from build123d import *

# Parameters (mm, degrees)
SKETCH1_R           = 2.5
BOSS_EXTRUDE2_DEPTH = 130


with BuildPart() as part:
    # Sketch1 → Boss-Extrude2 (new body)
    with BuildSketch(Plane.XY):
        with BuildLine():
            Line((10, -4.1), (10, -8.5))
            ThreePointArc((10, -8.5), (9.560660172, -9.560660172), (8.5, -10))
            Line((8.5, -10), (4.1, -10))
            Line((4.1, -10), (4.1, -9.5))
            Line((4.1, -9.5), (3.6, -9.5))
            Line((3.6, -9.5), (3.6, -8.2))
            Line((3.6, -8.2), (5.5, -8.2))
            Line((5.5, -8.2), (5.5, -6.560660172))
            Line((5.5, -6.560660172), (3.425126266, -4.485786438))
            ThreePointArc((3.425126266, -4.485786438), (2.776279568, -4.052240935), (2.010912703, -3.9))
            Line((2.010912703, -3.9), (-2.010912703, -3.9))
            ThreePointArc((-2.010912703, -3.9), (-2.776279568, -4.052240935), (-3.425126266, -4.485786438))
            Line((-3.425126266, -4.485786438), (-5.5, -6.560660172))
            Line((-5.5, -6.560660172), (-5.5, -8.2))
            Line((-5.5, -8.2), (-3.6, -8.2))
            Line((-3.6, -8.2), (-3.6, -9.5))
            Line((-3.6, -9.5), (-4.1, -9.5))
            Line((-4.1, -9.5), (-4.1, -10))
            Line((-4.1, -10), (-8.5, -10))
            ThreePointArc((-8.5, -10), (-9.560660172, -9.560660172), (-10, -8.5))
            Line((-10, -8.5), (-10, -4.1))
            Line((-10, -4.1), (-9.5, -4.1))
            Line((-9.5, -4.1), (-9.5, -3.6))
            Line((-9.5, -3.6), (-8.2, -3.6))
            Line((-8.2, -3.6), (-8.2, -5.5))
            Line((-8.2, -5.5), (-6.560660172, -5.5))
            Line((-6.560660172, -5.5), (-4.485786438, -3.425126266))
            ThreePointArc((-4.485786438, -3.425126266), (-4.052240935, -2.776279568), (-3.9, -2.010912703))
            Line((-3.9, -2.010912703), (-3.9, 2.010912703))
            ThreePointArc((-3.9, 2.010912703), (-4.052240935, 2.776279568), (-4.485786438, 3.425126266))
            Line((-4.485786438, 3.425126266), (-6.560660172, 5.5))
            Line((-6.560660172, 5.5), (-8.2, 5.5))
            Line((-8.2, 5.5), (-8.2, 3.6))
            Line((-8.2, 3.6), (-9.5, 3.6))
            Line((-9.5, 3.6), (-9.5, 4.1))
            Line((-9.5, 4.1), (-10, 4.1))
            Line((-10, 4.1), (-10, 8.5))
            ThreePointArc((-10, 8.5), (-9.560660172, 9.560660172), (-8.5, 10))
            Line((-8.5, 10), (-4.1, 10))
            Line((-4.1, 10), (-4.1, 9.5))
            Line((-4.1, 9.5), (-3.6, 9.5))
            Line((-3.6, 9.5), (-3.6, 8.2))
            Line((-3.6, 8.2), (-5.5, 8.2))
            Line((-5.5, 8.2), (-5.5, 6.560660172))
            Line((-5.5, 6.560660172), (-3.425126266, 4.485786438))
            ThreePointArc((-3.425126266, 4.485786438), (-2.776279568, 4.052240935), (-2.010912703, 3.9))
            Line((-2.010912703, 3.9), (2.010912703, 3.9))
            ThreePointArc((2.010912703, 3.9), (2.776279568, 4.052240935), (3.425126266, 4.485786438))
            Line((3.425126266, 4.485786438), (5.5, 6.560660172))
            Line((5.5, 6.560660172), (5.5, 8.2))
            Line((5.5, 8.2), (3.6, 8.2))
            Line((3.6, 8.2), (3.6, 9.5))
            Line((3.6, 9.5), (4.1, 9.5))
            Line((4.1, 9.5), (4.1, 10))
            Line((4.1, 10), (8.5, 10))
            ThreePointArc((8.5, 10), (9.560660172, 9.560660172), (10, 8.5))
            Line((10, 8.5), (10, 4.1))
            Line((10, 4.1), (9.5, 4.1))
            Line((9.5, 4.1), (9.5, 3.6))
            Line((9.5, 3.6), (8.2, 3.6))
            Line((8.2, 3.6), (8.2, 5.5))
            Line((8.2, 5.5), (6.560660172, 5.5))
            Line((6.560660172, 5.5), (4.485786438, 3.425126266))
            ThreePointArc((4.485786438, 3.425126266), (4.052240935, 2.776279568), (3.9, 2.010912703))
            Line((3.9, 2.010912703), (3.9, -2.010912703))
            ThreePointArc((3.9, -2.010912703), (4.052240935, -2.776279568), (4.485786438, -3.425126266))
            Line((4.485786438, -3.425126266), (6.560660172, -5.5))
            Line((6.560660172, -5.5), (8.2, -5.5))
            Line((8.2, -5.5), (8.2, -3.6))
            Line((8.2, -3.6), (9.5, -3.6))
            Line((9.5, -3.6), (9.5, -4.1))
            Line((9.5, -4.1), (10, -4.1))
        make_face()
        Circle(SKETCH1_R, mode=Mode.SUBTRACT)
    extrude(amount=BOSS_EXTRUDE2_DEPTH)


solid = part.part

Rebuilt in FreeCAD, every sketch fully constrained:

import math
import FreeCAD as App
import Part
import Sketcher
from FreeCAD import Vector

doc = App.newDocument("Part")
body = doc.addObject("PartDesign::Body", "Body")

sketch1 = body.newObject("Sketcher::SketchObject", "Sketch")
sketch1.AttachmentSupport = (doc.getObject("XY_Plane"), [""])
sketch1.MapMode = "FlatFace"
sketch1.addGeometry(Part.LineSegment(Vector(10, -8.5, 0), Vector(10, -4.1, 0)), False)
sketch1.addGeometry(Part.LineSegment(Vector(10, -4.1, 0), Vector(9.5, -4.1, 0)), False)
sketch1.addGeometry(Part.LineSegment(Vector(9.5, -4.1, 0), Vector(9.5, -3.6, 0)), False)
sketch1.addGeometry(Part.LineSegment(Vector(9.5, -3.6, 0), Vector(8.2, -3.6, 0)), False)
sketch1.addGeometry(Part.LineSegment(Vector(8.2, -3.6, 0), Vector(8.2, -5.5, 0)), False)
sketch1.addGeometry(Part.LineSegment(Vector(8.2, -5.5, 0), Vector(6.56, -5.5, 0)), False)
sketch1.addGeometry(Part.LineSegment(Vector(6.56, -5.5, 0), Vector(4.49, -3.43, 0)), False)
sketch1.addGeometry(Part.ArcOfCircle(Part.Circle(Vector(5.9, -2.01, 0), Vector(0, 0, 1), 2), math.radians(180), math.radians(225)), False)
sketch1.addGeometry(Part.LineSegment(Vector(3.9, -2.01, 0), Vector(3.9, 2.01, 0)), False)
sketch1.addGeometry(Part.ArcOfCircle(Part.Circle(Vector(5.9, 2.01, 0), Vector(0, 0, 1), 2), math.radians(135), math.radians(180)), False)
sketch1.addGeometry(Part.LineSegment(Vector(4.49, 3.43, 0), Vector(6.56, 5.5, 0)), False)
sketch1.addGeometry(Part.LineSegment(Vector(6.56, 5.5, 0), Vector(8.2, 5.5, 0)), False)
sketch1.addGeometry(Part.LineSegment(Vector(8.2, 5.5, 0), Vector(8.2, 3.6, 0)), False)
sketch1.addGeometry(Part.LineSegment(Vector(8.2, 3.6, 0), Vector(9.5, 3.6, 0)), False)
sketch1.addGeometry(Part.LineSegment(Vector(9.5, 3.6, 0), Vector(9.5, 4.1, 0)), False)
sketch1.addGeometry(Part.LineSegment(Vector(9.5, 4.1, 0), Vector(10, 4.1, 0)), False)
sketch1.addGeometry(Part.LineSegment(Vector(10, 4.1, 0), Vector(10, 8.5, 0)), False)
sketch1.addGeometry(Part.ArcOfCircle(Part.Circle(Vector(8.5, 8.5, 0), Vector(0, 0, 1), 1.5), math.radians(0), math.radians(90)), False)
sketch1.addGeometry(Part.LineSegment(Vector(8.5, 10, 0), Vector(4.1, 10, 0)), False)
sketch1.addGeometry(Part.LineSegment(Vector(4.1, 10, 0), Vector(4.1, 9.5, 0)), False)
sketch1.addGeometry(Part.LineSegment(Vector(4.1, 9.5, 0), Vector(3.6, 9.5, 0)), False)
sketch1.addGeometry(Part.LineSegment(Vector(3.6, 9.5, 0), Vector(3.6, 8.2, 0)), False)
sketch1.addGeometry(Part.LineSegment(Vector(3.6, 8.2, 0), Vector(5.5, 8.2, 0)), False)
sketch1.addGeometry(Part.LineSegment(Vector(5.5, 8.2, 0), Vector(5.5, 6.56, 0)), False)
sketch1.addGeometry(Part.LineSegment(Vector(5.5, 6.56, 0), Vector(3.43, 4.49, 0)), False)
sketch1.addGeometry(Part.ArcOfCircle(Part.Circle(Vector(2.01, 5.9, 0), Vector(0, 0, 1), 2), math.radians(-90), math.radians(-45)), False)
sketch1.addGeometry(Part.LineSegment(Vector(2.01, 3.9, 0), Vector(-2.01, 3.9, 0)), False)
sketch1.addGeometry(Part.ArcOfCircle(Part.Circle(Vector(-2.01, 5.9, 0), Vector(0, 0, 1), 2), math.radians(-135), math.radians(-90)), False)
sketch1.addGeometry(Part.LineSegment(Vector(-3.43, 4.49, 0), Vector(-5.5, 6.56, 0)), False)
sketch1.addGeometry(Part.LineSegment(Vector(-5.5, 6.56, 0), Vector(-5.5, 8.2, 0)), False)
sketch1.addGeometry(Part.LineSegment(Vector(-5.5, 8.2, 0), Vector(-3.6, 8.2, 0)), False)
sketch1.addGeometry(Part.LineSegment(Vector(-3.6, 8.2, 0), Vector(-3.6, 9.5, 0)), False)
sketch1.addGeometry(Part.LineSegment(Vector(-3.6, 9.5, 0), Vector(-4.1, 9.5, 0)), False)
sketch1.addGeometry(Part.LineSegment(Vector(-4.1, 9.5, 0), Vector(-4.1, 10, 0)), False)
sketch1.addGeometry(Part.LineSegment(Vector(-4.1, 10, 0), Vector(-8.5, 10, 0)), False)
sketch1.addGeometry(Part.ArcOfCircle(Part.Circle(Vector(-8.5, 8.5, 0), Vector(0, 0, 1), 1.5), math.radians(90), math.radians(180)), False)
sketch1.addGeometry(Part.LineSegment(Vector(-10, 8.5, 0), Vector(-10, 4.1, 0)), False)
sketch1.addGeometry(Part.LineSegment(Vector(-10, 4.1, 0), Vector(-9.5, 4.1, 0)), False)
sketch1.addGeometry(Part.LineSegment(Vector(-9.5, 4.1, 0), Vector(-9.5, 3.6, 0)), False)
sketch1.addGeometry(Part.LineSegment(Vector(-9.5, 3.6, 0), Vector(-8.2, 3.6, 0)), False)
sketch1.addGeometry(Part.LineSegment(Vector(-8.2, 3.6, 0), Vector(-8.2, 5.5, 0)), False)
sketch1.addGeometry(Part.LineSegment(Vector(-8.2, 5.5, 0), Vector(-6.56, 5.5, 0)), False)
sketch1.addGeometry(Part.LineSegment(Vector(-6.56, 5.5, 0), Vector(-4.49, 3.43, 0)), False)
sketch1.addGeometry(Part.ArcOfCircle(Part.Circle(Vector(-5.9, 2.01, 0), Vector(0, 0, 1), 2), math.radians(0), math.radians(45)), False)
sketch1.addGeometry(Part.LineSegment(Vector(-3.9, 2.01, 0), Vector(-3.9, -2.01, 0)), False)
sketch1.addGeometry(Part.ArcOfCircle(Part.Circle(Vector(-5.9, -2.01, 0), Vector(0, 0, 1), 2), math.radians(-45), math.radians(0)), False)
sketch1.addGeometry(Part.LineSegment(Vector(-4.49, -3.43, 0), Vector(-6.56, -5.5, 0)), False)
sketch1.addGeometry(Part.LineSegment(Vector(-6.56, -5.5, 0), Vector(-8.2, -5.5, 0)), False)
sketch1.addGeometry(Part.LineSegment(Vector(-8.2, -5.5, 0), Vector(-8.2, -3.6, 0)), False)
sketch1.addGeometry(Part.LineSegment(Vector(-8.2, -3.6, 0), Vector(-9.5, -3.6, 0)), False)
sketch1.addGeometry(Part.LineSegment(Vector(-9.5, -3.6, 0), Vector(-9.5, -4.1, 0)), False)
sketch1.addGeometry(Part.LineSegment(Vector(-9.5, -4.1, 0), Vector(-10, -4.1, 0)), False)
sketch1.addGeometry(Part.LineSegment(Vector(-10, -4.1, 0), Vector(-10, -8.5, 0)), False)
sketch1.addGeometry(Part.ArcOfCircle(Part.Circle(Vector(-8.5, -8.5, 0), Vector(0, 0, 1), 1.5), math.radians(180), math.radians(270)), False)
sketch1.addGeometry(Part.LineSegment(Vector(-8.5, -10, 0), Vector(-4.1, -10, 0)), False)
sketch1.addGeometry(Part.LineSegment(Vector(-4.1, -10, 0), Vector(-4.1, -9.5, 0)), False)
sketch1.addGeometry(Part.LineSegment(Vector(-4.1, -9.5, 0), Vector(-3.6, -9.5, 0)), False)
sketch1.addGeometry(Part.LineSegment(Vector(-3.6, -9.5, 0), Vector(-3.6, -8.2, 0)), False)
sketch1.addGeometry(Part.LineSegment(Vector(-3.6, -8.2, 0), Vector(-5.5, -8.2, 0)), False)
sketch1.addGeometry(Part.LineSegment(Vector(-5.5, -8.2, 0), Vector(-5.5, -6.56, 0)), False)
sketch1.addGeometry(Part.LineSegment(Vector(-5.5, -6.56, 0), Vector(-3.43, -4.49, 0)), False)
sketch1.addGeometry(Part.ArcOfCircle(Part.Circle(Vector(-2.01, -5.9, 0), Vector(0, 0, 1), 2), math.radians(90), math.radians(135)), False)
sketch1.addGeometry(Part.LineSegment(Vector(-2.01, -3.9, 0), Vector(2.01, -3.9, 0)), False)
sketch1.addGeometry(Part.ArcOfCircle(Part.Circle(Vector(2.01, -5.9, 0), Vector(0, 0, 1), 2), math.radians(45), math.radians(90)), False)
sketch1.addGeometry(Part.LineSegment(Vector(3.43, -4.49, 0), Vector(5.5, -6.56, 0)), False)
sketch1.addGeometry(Part.LineSegment(Vector(5.5, -6.56, 0), Vector(5.5, -8.2, 0)), False)
sketch1.addGeometry(Part.LineSegment(Vector(5.5, -8.2, 0), Vector(3.6, -8.2, 0)), False)
sketch1.addGeometry(Part.LineSegment(Vector(3.6, -8.2, 0), Vector(3.6, -9.5, 0)), False)
sketch1.addGeometry(Part.LineSegment(Vector(3.6, -9.5, 0), Vector(4.1, -9.5, 0)), False)
sketch1.addGeometry(Part.LineSegment(Vector(4.1, -9.5, 0), Vector(4.1, -10, 0)), False)
sketch1.addGeometry(Part.LineSegment(Vector(4.1, -10, 0), Vector(8.5, -10, 0)), False)
sketch1.addGeometry(Part.ArcOfCircle(Part.Circle(Vector(8.5, -8.5, 0), Vector(0, 0, 1), 1.5), math.radians(-90), math.radians(0)), False)
sketch1.addGeometry(Part.Circle(Vector(0, 0, 0), Vector(0, 0, 1), 2.5), False)
sketch1.addConstraint(Sketcher.Constraint("Coincident", 0, 2, 1, 1))
sketch1.addConstraint(Sketcher.Constraint("Coincident", 1, 2, 2, 1))
sketch1.addConstraint(Sketcher.Constraint("Coincident", 2, 2, 3, 1))
sketch1.addConstraint(Sketcher.Constraint("Coincident", 3, 2, 4, 1))
sketch1.addConstraint(Sketcher.Constraint("Coincident", 4, 2, 5, 1))
sketch1.addConstraint(Sketcher.Constraint("Coincident", 5, 2, 6, 1))
sketch1.addConstraint(Sketcher.Constraint("Tangent", 6, 2, 7, 2))
sketch1.addConstraint(Sketcher.Constraint("Tangent", 7, 1, 8, 1))
sketch1.addConstraint(Sketcher.Constraint("Tangent", 8, 2, 9, 2))
sketch1.addConstraint(Sketcher.Constraint("Tangent", 9, 1, 10, 1))
sketch1.addConstraint(Sketcher.Constraint("Coincident", 10, 2, 11, 1))
sketch1.addConstraint(Sketcher.Constraint("Coincident", 11, 2, 12, 1))
sketch1.addConstraint(Sketcher.Constraint("Coincident", 12, 2, 13, 1))
sketch1.addConstraint(Sketcher.Constraint("Coincident", 13, 2, 14, 1))
sketch1.addConstraint(Sketcher.Constraint("Coincident", 14, 2, 15, 1))
sketch1.addConstraint(Sketcher.Constraint("Coincident", 15, 2, 16, 1))
sketch1.addConstraint(Sketcher.Constraint("Tangent", 16, 2, 17, 1))
sketch1.addConstraint(Sketcher.Constraint("Tangent", 17, 2, 18, 1))
sketch1.addConstraint(Sketcher.Constraint("Coincident", 18, 2, 19, 1))
sketch1.addConstraint(Sketcher.Constraint("Coincident", 19, 2, 20, 1))
sketch1.addConstraint(Sketcher.Constraint("Coincident", 20, 2, 21, 1))
sketch1.addConstraint(Sketcher.Constraint("Coincident", 21, 2, 22, 1))
sketch1.addConstraint(Sketcher.Constraint("Coincident", 22, 2, 23, 1))
sketch1.addConstraint(Sketcher.Constraint("Coincident", 23, 2, 24, 1))
sketch1.addConstraint(Sketcher.Constraint("Tangent", 24, 2, 25, 2))
sketch1.addConstraint(Sketcher.Constraint("Tangent", 25, 1, 26, 1))
sketch1.addConstraint(Sketcher.Constraint("Tangent", 26, 2, 27, 2))
sketch1.addConstraint(Sketcher.Constraint("Tangent", 27, 1, 28, 1))
sketch1.addConstraint(Sketcher.Constraint("Coincident", 28, 2, 29, 1))
sketch1.addConstraint(Sketcher.Constraint("Coincident", 29, 2, 30, 1))
sketch1.addConstraint(Sketcher.Constraint("Coincident", 30, 2, 31, 1))
sketch1.addConstraint(Sketcher.Constraint("Coincident", 31, 2, 32, 1))
sketch1.addConstraint(Sketcher.Constraint("Coincident", 32, 2, 33, 1))
sketch1.addConstraint(Sketcher.Constraint("Coincident", 33, 2, 34, 1))
sketch1.addConstraint(Sketcher.Constraint("Tangent", 34, 2, 35, 1))
sketch1.addConstraint(Sketcher.Constraint("Tangent", 35, 2, 36, 1))
sketch1.addConstraint(Sketcher.Constraint("Coincident", 36, 2, 37, 1))
sketch1.addConstraint(Sketcher.Constraint("Coincident", 37, 2, 38, 1))
sketch1.addConstraint(Sketcher.Constraint("Coincident", 38, 2, 39, 1))
sketch1.addConstraint(Sketcher.Constraint("Coincident", 39, 2, 40, 1))
sketch1.addConstraint(Sketcher.Constraint("Coincident", 40, 2, 41, 1))
sketch1.addConstraint(Sketcher.Constraint("Coincident", 41, 2, 42, 1))
sketch1.addConstraint(Sketcher.Constraint("Tangent", 42, 2, 43, 2))
sketch1.addConstraint(Sketcher.Constraint("Tangent", 43, 1, 44, 1))
sketch1.addConstraint(Sketcher.Constraint("Tangent", 44, 2, 45, 2))
sketch1.addConstraint(Sketcher.Constraint("Tangent", 45, 1, 46, 1))
sketch1.addConstraint(Sketcher.Constraint("Coincident", 46, 2, 47, 1))
sketch1.addConstraint(Sketcher.Constraint("Coincident", 47, 2, 48, 1))
sketch1.addConstraint(Sketcher.Constraint("Coincident", 48, 2, 49, 1))
sketch1.addConstraint(Sketcher.Constraint("Coincident", 49, 2, 50, 1))
sketch1.addConstraint(Sketcher.Constraint("Coincident", 50, 2, 51, 1))
sketch1.addConstraint(Sketcher.Constraint("Coincident", 51, 2, 52, 1))
sketch1.addConstraint(Sketcher.Constraint("Tangent", 52, 2, 53, 1))
sketch1.addConstraint(Sketcher.Constraint("Tangent", 53, 2, 54, 1))
sketch1.addConstraint(Sketcher.Constraint("Coincident", 54, 2, 55, 1))
sketch1.addConstraint(Sketcher.Constraint("Coincident", 55, 2, 56, 1))
sketch1.addConstraint(Sketcher.Constraint("Coincident", 56, 2, 57, 1))
sketch1.addConstraint(Sketcher.Constraint("Coincident", 57, 2, 58, 1))
sketch1.addConstraint(Sketcher.Constraint("Coincident", 58, 2, 59, 1))
sketch1.addConstraint(Sketcher.Constraint("Coincident", 59, 2, 60, 1))
sketch1.addConstraint(Sketcher.Constraint("Tangent", 60, 2, 61, 2))
sketch1.addConstraint(Sketcher.Constraint("Tangent", 61, 1, 62, 1))
sketch1.addConstraint(Sketcher.Constraint("Tangent", 62, 2, 63, 2))
sketch1.addConstraint(Sketcher.Constraint("Tangent", 63, 1, 64, 1))
sketch1.addConstraint(Sketcher.Constraint("Coincident", 64, 2, 65, 1))
sketch1.addConstraint(Sketcher.Constraint("Coincident", 65, 2, 66, 1))
sketch1.addConstraint(Sketcher.Constraint("Coincident", 66, 2, 67, 1))
sketch1.addConstraint(Sketcher.Constraint("Coincident", 67, 2, 68, 1))
sketch1.addConstraint(Sketcher.Constraint("Coincident", 68, 2, 69, 1))
sketch1.addConstraint(Sketcher.Constraint("Coincident", 69, 2, 70, 1))
sketch1.addConstraint(Sketcher.Constraint("Tangent", 70, 2, 71, 1))
sketch1.addConstraint(Sketcher.Constraint("Tangent", 71, 2, 0, 1))
sketch1.addConstraint(Sketcher.Constraint("Vertical", 0))
sketch1.addConstraint(Sketcher.Constraint("Horizontal", 1))
sketch1.addConstraint(Sketcher.Constraint("Vertical", 2))
sketch1.addConstraint(Sketcher.Constraint("Horizontal", 3))
sketch1.addConstraint(Sketcher.Constraint("Vertical", 4))
sketch1.addConstraint(Sketcher.Constraint("Horizontal", 5))
sketch1.addConstraint(Sketcher.Constraint("Vertical", 8))
sketch1.addConstraint(Sketcher.Constraint("Horizontal", 11))
sketch1.addConstraint(Sketcher.Constraint("Vertical", 12))
sketch1.addConstraint(Sketcher.Constraint("Horizontal", 13))
sketch1.addConstraint(Sketcher.Constraint("Vertical", 14))
sketch1.addConstraint(Sketcher.Constraint("Horizontal", 15))
sketch1.addConstraint(Sketcher.Constraint("Vertical", 16))
sketch1.addConstraint(Sketcher.Constraint("Horizontal", 18))
sketch1.addConstraint(Sketcher.Constraint("Vertical", 19))
sketch1.addConstraint(Sketcher.Constraint("Horizontal", 20))
sketch1.addConstraint(Sketcher.Constraint("Vertical", 21))
sketch1.addConstraint(Sketcher.Constraint("Horizontal", 22))
sketch1.addConstraint(Sketcher.Constraint("Vertical", 23))
sketch1.addConstraint(Sketcher.Constraint("Horizontal", 26))
sketch1.addConstraint(Sketcher.Constraint("Vertical", 29))
sketch1.addConstraint(Sketcher.Constraint("Horizontal", 30))
sketch1.addConstraint(Sketcher.Constraint("Vertical", 31))
sketch1.addConstraint(Sketcher.Constraint("Horizontal", 32))
sketch1.addConstraint(Sketcher.Constraint("Vertical", 33))
sketch1.addConstraint(Sketcher.Constraint("Horizontal", 34))
sketch1.addConstraint(Sketcher.Constraint("Vertical", 36))
sketch1.addConstraint(Sketcher.Constraint("Horizontal", 37))
sketch1.addConstraint(Sketcher.Constraint("Vertical", 38))
sketch1.addConstraint(Sketcher.Constraint("Horizontal", 39))
sketch1.addConstraint(Sketcher.Constraint("Vertical", 40))
sketch1.addConstraint(Sketcher.Constraint("Horizontal", 41))
sketch1.addConstraint(Sketcher.Constraint("Vertical", 44))
sketch1.addConstraint(Sketcher.Constraint("Horizontal", 47))
sketch1.addConstraint(Sketcher.Constraint("Vertical", 48))
sketch1.addConstraint(Sketcher.Constraint("Horizontal", 49))
sketch1.addConstraint(Sketcher.Constraint("Vertical", 50))
sketch1.addConstraint(Sketcher.Constraint("Horizontal", 51))
sketch1.addConstraint(Sketcher.Constraint("Vertical", 52))
sketch1.addConstraint(Sketcher.Constraint("Horizontal", 54))
sketch1.addConstraint(Sketcher.Constraint("Vertical", 55))
sketch1.addConstraint(Sketcher.Constraint("Horizontal", 56))
sketch1.addConstraint(Sketcher.Constraint("Vertical", 57))
sketch1.addConstraint(Sketcher.Constraint("Horizontal", 58))
sketch1.addConstraint(Sketcher.Constraint("Vertical", 59))
sketch1.addConstraint(Sketcher.Constraint("Horizontal", 62))
sketch1.addConstraint(Sketcher.Constraint("Vertical", 65))
sketch1.addConstraint(Sketcher.Constraint("Horizontal", 66))
sketch1.addConstraint(Sketcher.Constraint("Vertical", 67))
sketch1.addConstraint(Sketcher.Constraint("Horizontal", 68))
sketch1.addConstraint(Sketcher.Constraint("Vertical", 69))
sketch1.addConstraint(Sketcher.Constraint("Horizontal", 70))
sketch1.addConstraint(Sketcher.Constraint("Coincident", 72, 3, -1, 1))
sketch1.addConstraint(Sketcher.Constraint("Equal", 7, 9))
sketch1.addConstraint(Sketcher.Constraint("Equal", 9, 25))
sketch1.addConstraint(Sketcher.Constraint("Equal", 25, 27))
sketch1.addConstraint(Sketcher.Constraint("Equal", 17, 35))
sketch1.addConstraint(Sketcher.Constraint("Equal", 27, 43))
sketch1.addConstraint(Sketcher.Constraint("Equal", 43, 45))
sketch1.addConstraint(Sketcher.Constraint("Equal", 35, 53))
sketch1.addConstraint(Sketcher.Constraint("Equal", 45, 61))
sketch1.addConstraint(Sketcher.Constraint("Equal", 61, 63))
sketch1.addConstraint(Sketcher.Constraint("Equal", 53, 71))
sketch1.addConstraint(Sketcher.Constraint("Symmetric", 7, 3, 43, 3, -1, 1))
sketch1.addConstraint(Sketcher.Constraint("Symmetric", 17, 3, 53, 3, -1, 1))
sketch1.addConstraint(Sketcher.Constraint("Symmetric", 25, 3, 61, 3, -1, 1))
sketch1.addConstraint(Sketcher.Constraint("Symmetric", 35, 3, 71, 3, -1, 1))
sketch1.addConstraint(Sketcher.Constraint("Symmetric", 1, 2, 37, 2, -1, 1))
sketch1.addConstraint(Sketcher.Constraint("Symmetric", 3, 2, 39, 2, -1, 1))
sketch1.addConstraint(Sketcher.Constraint("Symmetric", 5, 2, 41, 2, -1, 1))
sketch1.addConstraint(Sketcher.Constraint("Symmetric", 9, 1, 45, 1, -1, 1))
sketch1.addConstraint(Sketcher.Constraint("Symmetric", 11, 2, 47, 2, -1, 1))
sketch1.addConstraint(Sketcher.Constraint("Symmetric", 13, 2, 49, 2, -1, 1))
sketch1.addConstraint(Sketcher.Constraint("Symmetric", 19, 2, 55, 2, -1, 1))
sketch1.addConstraint(Sketcher.Constraint("Symmetric", 21, 2, 57, 2, -1, 1))
sketch1.addConstraint(Sketcher.Constraint("Symmetric", 23, 2, 59, 2, -1, 1))
sketch1.addConstraint(Sketcher.Constraint("Symmetric", 27, 1, 63, 1, -1, 1))
sketch1.addConstraint(Sketcher.Constraint("Symmetric", 29, 2, 65, 2, -1, 1))
sketch1.addConstraint(Sketcher.Constraint("Symmetric", 31, 2, 67, 2, -1, 1))
sketch1.addConstraint(Sketcher.Constraint("Symmetric", 17, 3, 35, 3, -2))
sketch1.addConstraint(Sketcher.Constraint("Symmetric", 24, 2, 27, 1, -2))
sketch1.addConstraint(Sketcher.Constraint("Symmetric", 22, 2, 29, 2, -2))
sketch1.addConstraint(Sketcher.Constraint("Symmetric", 20, 2, 31, 2, -2))
sketch1.addConstraint(Sketcher.Constraint("Symmetric", 14, 2, 37, 2, -2))
sketch1.addConstraint(Sketcher.Constraint("Symmetric", 12, 2, 39, 2, -2))
sketch1.addConstraint(Sketcher.Constraint("Symmetric", 10, 2, 41, 2, -2))
sketch1.addConstraint(Sketcher.Constraint("Perpendicular", 6, 10))
sketch1.addConstraint(Sketcher.Constraint("Parallel", 10, 24))
sketch1.addConstraint(Sketcher.Constraint("Perpendicular", 24, 28))
sketch1.addConstraint(Sketcher.Constraint("Horizontal", 1, 2, 50, 2))
sketch1.addConstraint(Sketcher.Constraint("Vertical", 33, 2, 54, 2))
sketch1.addConstraint(Sketcher.Constraint("Vertical", 19, 2, 68, 2))
sketch1.addConstraint(Sketcher.Constraint("Equal", 15, 20))
sketch1.addConstraint(Sketcher.Constraint("Equal", 70, 0))
sketch1.addConstraint(Sketcher.Constraint("Equal", 68, 2))
sketch1.addConstraint(Sketcher.Constraint("Equal", 66, 4))
sketch1.addConstraint(Sketcher.Constraint("Equal", 62, 8))
sketch1.addConstraint(Sketcher.Constraint("Equal", 14, 19))
sketch1.addConstraint(Sketcher.Constraint("Equal", 49, 21))
sketch1.addConstraint(Sketcher.Constraint("Equal", 47, 23))
sketch1.addConstraint(Sketcher.Constraint("Equal", 10, 24))
sketch1.addConstraint(Sketcher.Constraint("Diameter", 72, 5.0))
sketch1.addConstraint(Sketcher.Constraint("Radius", 7, 2.0))
sketch1.addConstraint(Sketcher.Constraint("Radius", 17, 1.5))
sketch1.addConstraint(Sketcher.Constraint("DistanceX", 1, 2, 1, 1, 0.5))
sketch1.addConstraint(Sketcher.Constraint("DistanceX", 3, 2, 3, 1, 1.3))
sketch1.addConstraint(Sketcher.Constraint("DistanceX", 18, 2, 18, 1, 4.4))
sketch1.addConstraint(Sketcher.Constraint("DistanceX", 22, 1, 22, 2, 1.9))
sketch1.addConstraint(Sketcher.Constraint("DistanceX", -1, 1, 0, 2, 10.0))
sketch1.addConstraint(Sketcher.Constraint("DistanceX", -1, 1, 7, 3, 5.9))
sketch1.addConstraint(Sketcher.Constraint("DistanceX", 5, 2, 5, 1, 1.63934))
pad1 = body.newObject("PartDesign::Pad", "Pad")
pad1.Profile = sketch1
pad1.Length = 130

doc.recompute()
